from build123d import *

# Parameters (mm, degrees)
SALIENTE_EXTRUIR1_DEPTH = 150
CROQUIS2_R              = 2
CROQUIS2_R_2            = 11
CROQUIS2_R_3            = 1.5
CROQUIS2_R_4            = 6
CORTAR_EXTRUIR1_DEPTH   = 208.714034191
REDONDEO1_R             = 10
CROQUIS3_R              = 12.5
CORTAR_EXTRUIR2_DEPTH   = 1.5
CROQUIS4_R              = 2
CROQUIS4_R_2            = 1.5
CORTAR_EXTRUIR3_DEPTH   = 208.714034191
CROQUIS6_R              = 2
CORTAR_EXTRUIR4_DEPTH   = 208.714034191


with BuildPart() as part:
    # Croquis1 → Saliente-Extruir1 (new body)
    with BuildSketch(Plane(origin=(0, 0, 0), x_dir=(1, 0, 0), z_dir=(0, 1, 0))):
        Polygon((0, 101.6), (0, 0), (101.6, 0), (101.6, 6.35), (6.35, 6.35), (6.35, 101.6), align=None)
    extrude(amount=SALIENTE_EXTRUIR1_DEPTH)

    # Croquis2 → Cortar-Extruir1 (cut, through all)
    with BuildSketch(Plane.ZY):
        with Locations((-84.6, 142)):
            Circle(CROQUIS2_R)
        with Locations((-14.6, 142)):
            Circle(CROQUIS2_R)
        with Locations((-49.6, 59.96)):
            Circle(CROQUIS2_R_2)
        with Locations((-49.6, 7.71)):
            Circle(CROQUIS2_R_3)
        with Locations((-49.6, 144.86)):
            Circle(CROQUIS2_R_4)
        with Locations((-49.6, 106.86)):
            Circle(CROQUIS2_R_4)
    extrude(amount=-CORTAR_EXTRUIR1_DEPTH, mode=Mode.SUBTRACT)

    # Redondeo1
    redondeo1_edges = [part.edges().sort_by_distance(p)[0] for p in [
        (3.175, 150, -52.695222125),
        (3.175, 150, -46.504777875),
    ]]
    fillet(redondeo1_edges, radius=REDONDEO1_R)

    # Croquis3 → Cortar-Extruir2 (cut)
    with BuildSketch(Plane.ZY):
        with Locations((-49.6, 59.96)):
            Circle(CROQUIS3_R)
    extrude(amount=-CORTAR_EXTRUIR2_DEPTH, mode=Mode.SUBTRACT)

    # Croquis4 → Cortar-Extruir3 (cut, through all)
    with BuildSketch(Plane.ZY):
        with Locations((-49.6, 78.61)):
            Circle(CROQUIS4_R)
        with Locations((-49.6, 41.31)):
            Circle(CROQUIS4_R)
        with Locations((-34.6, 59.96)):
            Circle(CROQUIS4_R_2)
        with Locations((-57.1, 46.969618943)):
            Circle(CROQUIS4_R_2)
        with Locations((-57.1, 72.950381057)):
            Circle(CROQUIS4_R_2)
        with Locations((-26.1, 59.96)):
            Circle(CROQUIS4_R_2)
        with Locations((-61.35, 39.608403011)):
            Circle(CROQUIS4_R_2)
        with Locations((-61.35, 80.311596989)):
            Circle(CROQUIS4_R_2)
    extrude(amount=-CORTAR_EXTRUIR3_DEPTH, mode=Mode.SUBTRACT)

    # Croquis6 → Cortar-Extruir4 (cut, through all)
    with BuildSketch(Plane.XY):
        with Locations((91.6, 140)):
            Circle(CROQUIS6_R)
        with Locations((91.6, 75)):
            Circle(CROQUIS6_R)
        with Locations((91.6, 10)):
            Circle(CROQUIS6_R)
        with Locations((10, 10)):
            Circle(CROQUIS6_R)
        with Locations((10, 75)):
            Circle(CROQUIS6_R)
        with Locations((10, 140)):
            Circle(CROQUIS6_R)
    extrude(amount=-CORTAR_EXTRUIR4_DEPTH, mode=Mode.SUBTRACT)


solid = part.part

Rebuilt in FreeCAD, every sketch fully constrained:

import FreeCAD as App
import Part
import Sketcher
Q = App.Units.Quantity


def edges_at(feature, points):
    """Names of the edges that pass closest to the given points."""
    edges = feature.Shape.Edges
    near = lambda p: min(range(len(edges)), key=lambda i: edges[i].distToShape(Part.Vertex(*p))[0])
    return sorted({f"Edge{near(p) + 1}" for p in points})


def add_polygon(sketch, points):
    """Adds a closed chain of lines whose ends are joined by coincident constraints."""
    first, n = sketch.GeometryCount, len(points)
    for a, b in zip(points, points[1:] + points[:1]):
        sketch.addGeometry(Part.LineSegment(App.Vector(*a, 0), App.Vector(*b, 0)), False)
    for i in range(n):
        sketch.addConstraint(Sketcher.Constraint("Coincident", first + i, 2, first + (i + 1) % n, 1))

doc = App.newDocument("Part")
body = doc.addObject("PartDesign::Body", "Body")

# Sketch on XZ plane
sketch1 = body.newObject("Sketcher::SketchObject", "Sketch")
sketch1.AttachmentSupport = (doc.getObject("XZ_Plane"), [""])
sketch1.MapMode = "FlatFace"
add_polygon(sketch1, [(0, -102), (0, 0), (102, 0), (102, -6), (6, -6), (6, -102)])  # lines 0-5
sketch1.addConstraint(Sketcher.Constraint("Vertical", 0))
sketch1.addConstraint(Sketcher.Constraint("Horizontal", 1))
sketch1.addConstraint(Sketcher.Constraint("Vertical", 2))
sketch1.addConstraint(Sketcher.Constraint("Horizontal", 3))
sketch1.addConstraint(Sketcher.Constraint("Vertical", 4))
sketch1.addConstraint(Sketcher.Constraint("Horizontal", 5))
sketch1.addConstraint(Sketcher.Constraint("Coincident", 0, 2, -1, 1))
sketch1.addConstraint(Sketcher.Constraint("Equal", 1, 0))
sketch1.addConstraint(Sketcher.Constraint("Equal", 5, 2))
sketch1.addConstraint(Sketcher.Constraint("DistanceX", 1, 1, 1, 2, Q("101.6 mm")))
sketch1.addConstraint(Sketcher.Constraint("DistanceX", 3, 2, 3, 1, Q("95.25 mm")))
pad1 = body.newObject("PartDesign::Pad", "Pad")
pad1.Profile = sketch1
pad1.Length = 150
pad1.Reversed = True

# Sketch on YZ plane
sketch2 = body.newObject("Sketcher::SketchObject", "Sketch001")
sketch2.AttachmentSupport = (doc.getObject("YZ_Plane"), [""])
sketch2.MapMode = "FlatFace"
sketch2.addGeometry(Part.Circle(App.Vector(142, -84.6, 0), App.Vector(0, 0, 1), 2), False)
sketch2.addGeometry(Part.Circle(App.Vector(142, -14.6, 0), App.Vector(0, 0, 1), 2), False)
sketch2.addGeometry(Part.Circle(App.Vector(60, -49.6, 0), App.Vector(0, 0, 1), 11), False)
sketch2.addGeometry(Part.Circle(App.Vector(7.7, -49.6, 0), App.Vector(0, 0, 1), 1.5), False)
sketch2.addGeometry(Part.Circle(App.Vector(144.9, -49.6, 0), App.Vector(0, 0, 1), 6), False)
sketch2.addGeometry(Part.Circle(App.Vector(106.9, -49.6, 0), App.Vector(0, 0, 1), 6), False)
sketch2.addConstraint(Sketcher.Constraint("Equal", 0, 1))
sketch2.addConstraint(Sketcher.Constraint("Equal", 4, 5))
sketch2.addConstraint(Sketcher.Constraint("Horizontal", 2, 3, 3, 3))
sketch2.addConstraint(Sketcher.Constraint("Horizontal", 3, 3, 4, 3))
sketch2.addConstraint(Sketcher.Constraint("Horizontal", 4, 3, 5, 3))
sketch2.addConstraint(Sketcher.Constraint("Vertical", 0, 3, 1, 3))
sketch2.addConstraint(Sketcher.Constraint("Diameter", 0, Q("4 mm")))
sketch2.addConstraint(Sketcher.Constraint("Diameter", 2, Q("22 mm")))
sketch2.addConstraint(Sketcher.Constraint("Diameter", 3, Q("3 mm")))
sketch2.addConstraint(Sketcher.Constraint("Diameter", 4, Q("12 mm")))
sketch2.addConstraint(Sketcher.Constraint("DistanceX", -1, 1, 0, 3, Q("142 mm")))
sketch2.addConstraint(Sketcher.Constraint("DistanceY", 0, 3, 1, 3, Q("70 mm")))
sketch2.addConstraint(Sketcher.Constraint("DistanceY", 0, 3, 2, 3, Q("35 mm")))
sketch2.addConstraint(Sketcher.Constraint("DistanceX", 5, 3, 4, 3, Q("38 mm")))
sketch2.addConstraint(Sketcher.Constraint("DistanceY", 0, 3, -1, 1, Q("84.6 mm")))
sketch2.addConstraint(Sketcher.Constraint("DistanceX", 2, 3, 4, 3, Q("84.9 mm")))
sketch2.addConstraint(Sketcher.Constraint("DistanceX", -1, 1, 2, 3, Q("59.96 mm")))
sketch2.addConstraint(Sketcher.Constraint("DistanceX", -1, 1, 3, 3, Q("7.71 mm")))
pocket1 = body.newObject("PartDesign::Pocket", "Pocket")
pocket1.Profile = sketch2
pocket1.Type = "ThroughAll"
pocket1.Reversed = True
doc.recompute()

fillet = body.newObject("PartDesign::Fillet", "Fillet")
fillet.Base = (pocket1, edges_at(pocket1, [(3.175, 150, -52.695), (3.175, 150, -46.505)]))
fillet.Radius = 10

# Sketch on YZ plane
sketch3 = body.newObject("Sketcher::SketchObject", "Sketch002")
sketch3.AttachmentSupport = (doc.getObject("YZ_Plane"), [""])
sketch3.MapMode = "FlatFace"
sketch3.addGeometry(Part.Circle(App.Vector(60, -50, 0), App.Vector(0, 0, 1), 12), False)
sketch3.addConstraint(Sketcher.Constraint("Diameter", 0, Q("25 mm")))
sketch3.addConstraint(Sketcher.Constraint("DistanceY", 0, 3, -1, 1, Q("49.6 mm")))
sketch3.addConstraint(Sketcher.Constraint("DistanceX", -1, 1, 0, 3, Q("59.96 mm")))
pocket2 = body.newObject("PartDesign::Pocket", "Pocket001")
pocket2.Profile = sketch3
pocket2.Length = 1.5
pocket2.Reversed = True

# Sketch on YZ plane
sketch4 = body.newObject("Sketcher::SketchObject", "Sketch003")
sketch4.AttachmentSupport = (doc.getObject("YZ_Plane"), [""])
sketch4.MapMode = "FlatFace"
sketch4.addGeometry(Part.Circle(App.Vector(78.6, -49.6, 0), App.Vector(0, 0, 1), 2), False)
sketch4.addGeometry(Part.Circle(App.Vector(41.3, -49.6, 0), App.Vector(0, 0, 1), 2), False)
sketch4.addGeometry(Part.Circle(App.Vector(60, -34.6, 0), App.Vector(0, 0, 1), 1.5), False)
sketch4.addGeometry(Part.Circle(App.Vector(47, -57.1, 0), App.Vector(0, 0, 1), 1.5), False)
sketch4.addGeometry(Part.Circle(App.Vector(73, -57.1, 0), App.Vector(0, 0, 1), 1.5), False)
sketch4.addGeometry(Part.Circle(App.Vector(60, -26.1, 0), App.Vector(0, 0, 1), 1.5), False)
sketch4.addGeometry(Part.Circle(App.Vector(39.6, -61.4, 0), App.Vector(0, 0, 1), 1.5), False)
sketch4.addGeometry(Part.Circle(App.Vector(80.3, -61.4, 0), App.Vector(0, 0, 1), 1.5), False)
sketch4.addConstraint(Sketcher.Constraint("Equal", 0, 1))
sketch4.addConstraint(Sketcher.Constraint("Equal", 2, 3))
sketch4.addConstraint(Sketcher.Constraint("Equal", 3, 4))
sketch4.addConstraint(Sketcher.Constraint("Equal", 4, 5))
sketch4.addConstraint(Sketcher.Constraint("Equal", 5, 6))
sketch4.addConstraint(Sketcher.Constraint("Equal", 6, 7))
sketch4.addConstraint(Sketcher.Constraint("Horizontal", 0, 3, 1, 3))
sketch4.addConstraint(Sketcher.Constraint("Horizontal", 3, 3, 4, 3))
sketch4.addConstraint(Sketcher.Constraint("Horizontal", 6, 3, 7, 3))
sketch4.addConstraint(Sketcher.Constraint("Vertical", 2, 3, 5, 3))
sketch4.addConstraint(Sketcher.Constraint("Diameter", 0, Q("4 mm")))
sketch4.addConstraint(Sketcher.Constraint("Diameter", 2, Q("3 mm")))
sketch4.addConstraint(Sketcher.Constraint("DistanceY", 0, 3, 2, 3, Q("15 mm")))
sketch4.addConstraint(Sketcher.Constraint("DistanceY", 3, 3, 5, 3, Q("31 mm")))
sketch4.addConstraint(Sketcher.Constraint("DistanceY", 0, 3, -1, 1, Q("49.6 mm")))
sketch4.addConstraint(Sketcher.Constraint("DistanceY", 3, 3, -1, 1, Q("57.1 mm")))
sketch4.addConstraint(Sketcher.Constraint("DistanceX", 1, 3, 0, 3, Q("37.3 mm")))
sketch4.addConstraint(Sketcher.Constraint("DistanceX", -1, 1, 0, 3, Q("78.61 mm")))
sketch4.addConstraint(Sketcher.Constraint("DistanceX", -1, 1, 2, 3, Q("59.96 mm")))
sketch4.addConstraint(Sketcher.Constraint("DistanceY", 6, 3, -1, 1, Q("61.35 mm")))
sketch4.addConstraint(Sketcher.Constraint("DistanceX", -1, 1, 3, 3, Q("46.969619 mm")))
sketch4.addConstraint(Sketcher.Constraint("DistanceX", -1, 1, 4, 3, Q("72.950381 mm")))
sketch4.addConstraint(Sketcher.Constraint("DistanceX", 6, 3, 4, 3, Q("33.341978 mm")))
sketch4.addConstraint(Sketcher.Constraint("DistanceX", 3, 3, 7, 3, Q("33.341978 mm")))
pocket3 = body.newObject("PartDesign::Pocket", "Pocket002")
pocket3.Profile = sketch4
pocket3.Type = "ThroughAll"
pocket3.Reversed = True

# Sketch on XY plane
sketch5 = body.newObject("Sketcher::SketchObject", "Sketch004")
sketch5.AttachmentSupport = (doc.getObject("XY_Plane"), [""])
sketch5.MapMode = "FlatFace"
sketch5.addGeometry(Part.Circle(App.Vector(91.6, 140, 0), App.Vector(0, 0, 1), 2), False)
sketch5.addGeometry(Part.Circle(App.Vector(91.6, 75, 0), App.Vector(0, 0, 1), 2), False)
sketch5.addGeometry(Part.Circle(App.Vector(91.6, 10, 0), App.Vector(0, 0, 1), 2), False)
sketch5.addGeometry(Part.Circle(App.Vector(10, 10, 0), App.Vector(0, 0, 1), 2), False)
sketch5.addGeometry(Part.Circle(App.Vector(10, 75, 0), App.Vector(0, 0, 1), 2), False)
sketch5.addGeometry(Part.Circle(App.Vector(10, 140, 0), App.Vector(0, 0, 1), 2), False)
sketch5.addConstraint(Sketcher.Constraint("Equal", 0, 1))
sketch5.addConstraint(Sketcher.Constraint("Equal", 1, 2))
sketch5.addConstraint(Sketcher.Constraint("Equal", 2, 3))
sketch5.addConstraint(Sketcher.Constraint("Equal", 3, 4))
sketch5.addConstraint(Sketcher.Constraint("Equal", 4, 5))
sketch5.addConstraint(Sketcher.Constraint("Horizontal", 2, 3, 3, 3))
sketch5.addConstraint(Sketcher.Constraint("Horizontal", 1, 3, 4, 3))
sketch5.addConstraint(Sketcher.Constraint("Horizontal", 0, 3, 5, 3))
sketch5.addConstraint(Sketcher.Constraint("Vertical", 0, 3, 1, 3))
sketch5.addConstraint(Sketcher.Constraint("Vertical", 1, 3, 2, 3))
sketch5.addConstraint(Sketcher.Constraint("Vertical", 3, 3, 4, 3))
sketch5.addConstraint(Sketcher.Constraint("Vertical", 4, 3, 5, 3))
sketch5.addConstraint(Sketcher.Constraint("Diameter", 0, Q("4 mm")))
sketch5.addConstraint(Sketcher.Constraint("DistanceY", -1, 1, 0, 3, Q("140 mm")))
sketch5.addConstraint(Sketcher.Constraint("DistanceY", -1, 1, 1, 3, Q("75 mm")))
sketch5.addConstraint(Sketcher.Constraint("DistanceY", -1, 1, 2, 3, Q("10 mm")))
sketch5.addConstraint(Sketcher.Constraint("DistanceX", -1, 1, 3, 3, Q("10 mm")))
sketch5.addConstraint(Sketcher.Constraint("DistanceX", -1, 1, 0, 3, Q("91.6 mm")))
pocket4 = body.newObject("PartDesign::Pocket", "Pocket003")
pocket4.Profile = sketch5
pocket4.Type = "ThroughAll"

doc.recompute()
